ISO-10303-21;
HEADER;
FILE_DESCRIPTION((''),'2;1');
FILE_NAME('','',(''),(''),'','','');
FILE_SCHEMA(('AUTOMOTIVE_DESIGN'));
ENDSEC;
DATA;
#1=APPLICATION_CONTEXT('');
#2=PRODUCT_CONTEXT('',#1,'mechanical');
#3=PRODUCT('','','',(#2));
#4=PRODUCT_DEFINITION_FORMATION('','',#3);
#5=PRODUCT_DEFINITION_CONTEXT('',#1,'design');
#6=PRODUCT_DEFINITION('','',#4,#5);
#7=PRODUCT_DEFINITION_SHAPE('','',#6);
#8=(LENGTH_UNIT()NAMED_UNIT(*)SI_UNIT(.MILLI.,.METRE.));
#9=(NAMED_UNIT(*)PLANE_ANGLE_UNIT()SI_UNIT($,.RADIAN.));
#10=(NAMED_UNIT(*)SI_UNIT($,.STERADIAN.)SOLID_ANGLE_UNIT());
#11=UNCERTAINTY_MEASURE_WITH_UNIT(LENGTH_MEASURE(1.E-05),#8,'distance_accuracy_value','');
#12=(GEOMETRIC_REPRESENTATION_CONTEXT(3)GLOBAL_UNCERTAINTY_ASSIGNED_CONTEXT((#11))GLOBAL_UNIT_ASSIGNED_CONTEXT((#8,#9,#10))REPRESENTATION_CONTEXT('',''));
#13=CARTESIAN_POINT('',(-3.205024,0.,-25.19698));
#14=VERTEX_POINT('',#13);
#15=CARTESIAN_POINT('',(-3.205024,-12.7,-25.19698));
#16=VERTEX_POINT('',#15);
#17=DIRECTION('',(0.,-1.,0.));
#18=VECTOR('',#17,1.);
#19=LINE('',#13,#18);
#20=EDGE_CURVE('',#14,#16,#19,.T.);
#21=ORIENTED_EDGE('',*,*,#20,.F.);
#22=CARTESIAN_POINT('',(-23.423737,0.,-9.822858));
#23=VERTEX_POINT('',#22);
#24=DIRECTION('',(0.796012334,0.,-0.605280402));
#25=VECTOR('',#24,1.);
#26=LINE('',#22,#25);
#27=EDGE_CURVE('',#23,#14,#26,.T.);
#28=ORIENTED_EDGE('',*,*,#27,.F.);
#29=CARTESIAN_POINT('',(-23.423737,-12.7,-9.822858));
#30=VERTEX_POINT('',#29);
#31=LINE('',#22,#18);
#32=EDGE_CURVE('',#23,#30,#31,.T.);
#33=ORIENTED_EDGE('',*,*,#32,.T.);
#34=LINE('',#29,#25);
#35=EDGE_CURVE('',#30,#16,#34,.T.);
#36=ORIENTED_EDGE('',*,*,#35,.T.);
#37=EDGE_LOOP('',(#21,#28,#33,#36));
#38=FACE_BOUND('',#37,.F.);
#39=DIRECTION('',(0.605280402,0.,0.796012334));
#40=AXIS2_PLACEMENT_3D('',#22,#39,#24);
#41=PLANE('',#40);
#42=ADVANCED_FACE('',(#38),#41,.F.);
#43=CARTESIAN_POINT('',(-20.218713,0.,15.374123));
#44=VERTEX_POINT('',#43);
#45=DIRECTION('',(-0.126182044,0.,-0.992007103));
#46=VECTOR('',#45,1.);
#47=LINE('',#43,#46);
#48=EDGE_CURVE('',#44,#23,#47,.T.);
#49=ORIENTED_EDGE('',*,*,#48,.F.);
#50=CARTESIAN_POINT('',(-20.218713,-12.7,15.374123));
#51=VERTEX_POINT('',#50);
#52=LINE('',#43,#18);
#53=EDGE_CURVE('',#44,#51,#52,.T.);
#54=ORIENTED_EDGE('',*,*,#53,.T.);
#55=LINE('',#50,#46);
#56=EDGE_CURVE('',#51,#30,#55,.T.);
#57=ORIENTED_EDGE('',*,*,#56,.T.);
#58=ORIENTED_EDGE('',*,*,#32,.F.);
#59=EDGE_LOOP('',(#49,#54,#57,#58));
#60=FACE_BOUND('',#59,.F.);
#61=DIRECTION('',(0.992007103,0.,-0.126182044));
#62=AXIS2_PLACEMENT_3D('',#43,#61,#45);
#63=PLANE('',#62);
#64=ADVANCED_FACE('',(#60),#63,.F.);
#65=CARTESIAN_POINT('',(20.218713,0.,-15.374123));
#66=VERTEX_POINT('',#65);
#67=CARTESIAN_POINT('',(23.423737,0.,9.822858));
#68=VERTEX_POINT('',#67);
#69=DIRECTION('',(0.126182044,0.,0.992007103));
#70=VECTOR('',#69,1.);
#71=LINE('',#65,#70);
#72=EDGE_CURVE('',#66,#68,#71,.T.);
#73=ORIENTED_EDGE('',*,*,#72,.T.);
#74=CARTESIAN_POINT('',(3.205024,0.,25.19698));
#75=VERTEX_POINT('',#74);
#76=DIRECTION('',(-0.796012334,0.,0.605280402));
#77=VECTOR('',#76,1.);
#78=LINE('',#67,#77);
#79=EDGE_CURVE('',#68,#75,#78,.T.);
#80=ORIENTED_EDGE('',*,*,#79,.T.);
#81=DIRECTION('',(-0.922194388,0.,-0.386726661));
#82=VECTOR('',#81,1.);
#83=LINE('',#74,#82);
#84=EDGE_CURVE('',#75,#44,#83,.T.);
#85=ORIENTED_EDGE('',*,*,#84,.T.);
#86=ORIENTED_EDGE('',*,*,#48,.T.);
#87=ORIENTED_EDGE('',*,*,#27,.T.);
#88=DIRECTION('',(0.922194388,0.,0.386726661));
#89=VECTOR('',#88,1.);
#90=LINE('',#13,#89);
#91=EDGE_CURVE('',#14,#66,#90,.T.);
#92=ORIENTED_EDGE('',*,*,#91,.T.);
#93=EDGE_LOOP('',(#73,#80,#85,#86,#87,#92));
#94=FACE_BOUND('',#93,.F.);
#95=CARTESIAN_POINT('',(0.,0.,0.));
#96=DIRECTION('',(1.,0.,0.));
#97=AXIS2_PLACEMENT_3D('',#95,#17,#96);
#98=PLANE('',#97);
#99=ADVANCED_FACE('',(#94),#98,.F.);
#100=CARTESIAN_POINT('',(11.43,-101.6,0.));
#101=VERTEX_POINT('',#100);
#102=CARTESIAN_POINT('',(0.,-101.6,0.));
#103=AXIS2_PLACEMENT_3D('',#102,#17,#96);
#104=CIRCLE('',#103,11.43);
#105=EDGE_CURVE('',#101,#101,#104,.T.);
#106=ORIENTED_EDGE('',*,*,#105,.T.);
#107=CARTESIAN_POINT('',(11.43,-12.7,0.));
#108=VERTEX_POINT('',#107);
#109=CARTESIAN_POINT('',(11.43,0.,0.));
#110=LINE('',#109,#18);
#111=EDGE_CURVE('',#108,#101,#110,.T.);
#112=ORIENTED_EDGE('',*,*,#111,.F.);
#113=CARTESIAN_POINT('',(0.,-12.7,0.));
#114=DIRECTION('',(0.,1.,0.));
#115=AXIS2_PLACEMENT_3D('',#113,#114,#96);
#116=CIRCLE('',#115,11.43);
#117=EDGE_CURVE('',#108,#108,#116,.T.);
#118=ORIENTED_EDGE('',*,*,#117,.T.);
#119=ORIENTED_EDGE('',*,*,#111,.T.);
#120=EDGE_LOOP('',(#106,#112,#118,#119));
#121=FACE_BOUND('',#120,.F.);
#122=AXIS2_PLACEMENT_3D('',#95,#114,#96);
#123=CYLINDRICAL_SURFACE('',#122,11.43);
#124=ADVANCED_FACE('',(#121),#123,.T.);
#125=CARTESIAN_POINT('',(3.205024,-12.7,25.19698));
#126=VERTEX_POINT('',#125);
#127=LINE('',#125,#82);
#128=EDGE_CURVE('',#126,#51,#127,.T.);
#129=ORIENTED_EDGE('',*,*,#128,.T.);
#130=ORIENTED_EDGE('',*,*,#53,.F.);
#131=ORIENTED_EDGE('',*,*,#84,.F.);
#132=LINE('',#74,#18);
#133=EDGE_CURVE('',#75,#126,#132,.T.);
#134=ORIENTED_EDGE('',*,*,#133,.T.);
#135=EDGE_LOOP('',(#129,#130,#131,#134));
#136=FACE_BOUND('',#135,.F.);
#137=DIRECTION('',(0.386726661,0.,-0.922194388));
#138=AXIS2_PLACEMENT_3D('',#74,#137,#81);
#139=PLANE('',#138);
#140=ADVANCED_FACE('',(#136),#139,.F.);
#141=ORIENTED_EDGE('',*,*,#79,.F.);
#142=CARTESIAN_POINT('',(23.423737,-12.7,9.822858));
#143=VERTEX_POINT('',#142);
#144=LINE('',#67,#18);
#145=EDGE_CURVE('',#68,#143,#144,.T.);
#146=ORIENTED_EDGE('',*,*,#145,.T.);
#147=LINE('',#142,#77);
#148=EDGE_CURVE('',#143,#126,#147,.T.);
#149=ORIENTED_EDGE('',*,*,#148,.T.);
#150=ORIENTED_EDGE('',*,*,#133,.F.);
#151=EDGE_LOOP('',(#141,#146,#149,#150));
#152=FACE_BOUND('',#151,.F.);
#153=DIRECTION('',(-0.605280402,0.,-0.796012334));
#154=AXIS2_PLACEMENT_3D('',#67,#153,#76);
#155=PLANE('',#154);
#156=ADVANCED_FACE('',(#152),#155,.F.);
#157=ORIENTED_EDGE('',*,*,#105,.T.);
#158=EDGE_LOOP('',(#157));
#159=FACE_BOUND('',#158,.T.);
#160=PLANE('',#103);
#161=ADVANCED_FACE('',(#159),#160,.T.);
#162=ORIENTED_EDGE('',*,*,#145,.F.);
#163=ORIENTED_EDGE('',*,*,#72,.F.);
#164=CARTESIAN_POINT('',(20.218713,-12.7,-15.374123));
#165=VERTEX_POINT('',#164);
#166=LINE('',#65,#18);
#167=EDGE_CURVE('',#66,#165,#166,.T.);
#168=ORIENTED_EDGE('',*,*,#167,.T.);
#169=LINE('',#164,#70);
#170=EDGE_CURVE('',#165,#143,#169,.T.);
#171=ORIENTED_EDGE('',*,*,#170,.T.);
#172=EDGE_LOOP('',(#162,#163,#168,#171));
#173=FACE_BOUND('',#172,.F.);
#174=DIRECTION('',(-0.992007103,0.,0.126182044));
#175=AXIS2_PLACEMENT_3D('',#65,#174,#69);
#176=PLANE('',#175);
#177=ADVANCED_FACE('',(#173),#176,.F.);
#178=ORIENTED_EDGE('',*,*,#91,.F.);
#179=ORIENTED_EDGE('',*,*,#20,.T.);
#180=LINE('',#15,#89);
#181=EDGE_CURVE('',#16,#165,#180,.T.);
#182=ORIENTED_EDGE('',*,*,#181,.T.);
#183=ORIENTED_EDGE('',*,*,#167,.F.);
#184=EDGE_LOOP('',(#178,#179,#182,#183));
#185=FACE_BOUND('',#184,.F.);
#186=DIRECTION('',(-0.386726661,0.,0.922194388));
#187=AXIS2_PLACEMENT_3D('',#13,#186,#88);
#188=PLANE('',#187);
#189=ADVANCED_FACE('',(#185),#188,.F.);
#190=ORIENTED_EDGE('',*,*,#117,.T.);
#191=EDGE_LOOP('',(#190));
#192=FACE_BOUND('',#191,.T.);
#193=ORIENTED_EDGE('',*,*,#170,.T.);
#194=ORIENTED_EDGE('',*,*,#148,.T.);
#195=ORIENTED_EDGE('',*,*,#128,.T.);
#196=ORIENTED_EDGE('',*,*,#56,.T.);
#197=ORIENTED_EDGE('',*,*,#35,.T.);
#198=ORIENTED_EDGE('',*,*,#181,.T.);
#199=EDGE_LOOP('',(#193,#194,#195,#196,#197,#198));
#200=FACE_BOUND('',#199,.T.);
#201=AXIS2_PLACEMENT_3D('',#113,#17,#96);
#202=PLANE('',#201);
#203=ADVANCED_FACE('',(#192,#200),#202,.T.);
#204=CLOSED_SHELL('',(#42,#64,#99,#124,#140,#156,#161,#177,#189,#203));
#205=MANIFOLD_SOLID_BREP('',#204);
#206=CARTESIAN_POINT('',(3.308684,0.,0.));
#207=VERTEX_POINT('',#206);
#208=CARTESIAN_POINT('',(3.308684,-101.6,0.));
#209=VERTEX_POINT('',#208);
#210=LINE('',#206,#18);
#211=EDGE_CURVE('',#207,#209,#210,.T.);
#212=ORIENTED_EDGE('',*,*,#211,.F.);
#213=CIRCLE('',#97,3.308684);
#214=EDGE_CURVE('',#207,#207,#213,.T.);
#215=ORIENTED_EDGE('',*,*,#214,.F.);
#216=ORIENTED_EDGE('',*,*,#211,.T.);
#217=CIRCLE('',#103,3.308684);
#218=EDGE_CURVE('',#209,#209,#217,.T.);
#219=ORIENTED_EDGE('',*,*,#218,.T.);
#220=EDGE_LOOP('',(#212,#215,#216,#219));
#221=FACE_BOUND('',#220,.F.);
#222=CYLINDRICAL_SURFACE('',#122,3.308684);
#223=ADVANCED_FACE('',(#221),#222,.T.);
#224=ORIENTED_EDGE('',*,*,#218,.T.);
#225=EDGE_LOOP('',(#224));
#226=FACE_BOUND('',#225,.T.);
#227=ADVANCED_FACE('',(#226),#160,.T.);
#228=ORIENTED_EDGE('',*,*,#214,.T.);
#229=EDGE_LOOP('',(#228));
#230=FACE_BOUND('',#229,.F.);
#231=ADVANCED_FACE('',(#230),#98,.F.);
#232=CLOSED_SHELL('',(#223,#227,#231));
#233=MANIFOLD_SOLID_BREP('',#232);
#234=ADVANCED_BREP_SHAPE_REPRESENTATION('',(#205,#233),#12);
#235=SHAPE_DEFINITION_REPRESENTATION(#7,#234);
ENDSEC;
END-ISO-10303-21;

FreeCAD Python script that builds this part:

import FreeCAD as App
import Part
import Sketcher
from FreeCAD import Vector
Q = App.Units.Quantity

doc = App.newDocument("Part")
body = doc.addObject("PartDesign::Body", "Body")

# Sketch on XZ plane
sketch1 = doc.addObject("Sketcher::SketchObject", "Sketch")
body.addObject(sketch1)
sketch1.AttachmentSupport = (doc.XZ_Plane, [""])
sketch1.MapMode = "FlatFace"
sketch1.addGeometry([
    Part.LineSegment(Vector(3.205024, 25.19698, 0), Vector(-20.218713, 15.374123, 0)),  # 0
    Part.LineSegment(Vector(-20.218713, 15.374123, 0), Vector(-23.423737, -9.822858, 0)),  # 1
    Part.LineSegment(Vector(-23.423737, -9.822858, 0), Vector(-3.205024, -25.19698, 0)),  # 2
    Part.LineSegment(Vector(-3.205024, -25.19698, 0), Vector(20.218713, -15.374123, 0)),  # 3
    Part.LineSegment(Vector(20.218713, -15.374123, 0), Vector(23.423737, 9.822858, 0)),  # 4
    Part.LineSegment(Vector(23.423737, 9.822858, 0), Vector(3.205024, 25.19698, 0)),  # 5
], False)
sketch1.addConstraint([
    Sketcher.Constraint("Coincident", 0, 2, 1, 1),
    Sketcher.Constraint("Coincident", 1, 2, 2, 1),
    Sketcher.Constraint("Coincident", 2, 2, 3, 1),
    Sketcher.Constraint("Coincident", 3, 2, 4, 1),
    Sketcher.Constraint("Coincident", 4, 2, 5, 1),
    Sketcher.Constraint("Coincident", 5, 2, 0, 1),
    Sketcher.Constraint("Symmetric", 0, 2, 3, 2, -1, 1),
    Sketcher.Constraint("Symmetric", 1, 2, 4, 2, -1, 1),
    Sketcher.Constraint("Symmetric", 2, 2, 5, 2, -1, 1),
    Sketcher.Constraint("Equal", 0, 1),
    Sketcher.Constraint("Equal", 1, 2),
    Sketcher.Constraint("Distance", 0, Q("1 in")),
    Sketcher.Constraint("DistanceY", 2, 2, -1, 1, Q("25.19698 mm")),
    Sketcher.Constraint("DistanceY", 1, 2, 0, 2, Q("25.196981 mm")),
    Sketcher.Constraint("DistanceX", 0, 2, 2, 2, Q("17.013689 mm")),
])
pad1 = doc.addObject("PartDesign::Pad", "Pad")
body.addObject(pad1)
pad1.Profile = sketch1
pad1.Length = Q("0.5 in")

# Sketch on XZ plane
sketch2 = doc.addObject("Sketcher::SketchObject", "Sketch001")
body.addObject(sketch2)
sketch2.AttachmentSupport = (doc.XZ_Plane, [""])
sketch2.MapMode = "FlatFace"
sketch2.addGeometry(Part.Circle(Vector(0, 0, 0), Vector(0, 0, 1), 11.43), False)
sketch2.addConstraint([
    Sketcher.Constraint("Coincident", 0, 3, -1, 1),
    Sketcher.Constraint("Diameter", 0, Q("0.9 in")),
])
pad2 = doc.addObject("PartDesign::Pad", "Pad001")
body.addObject(pad2)
pad2.Profile = sketch2
pad2.Length = Q("4 in")
body2 = doc.addObject("PartDesign::Body", "Body001")

# Sketch on XZ plane
sketch3 = doc.addObject("Sketcher::SketchObject", "Sketch002")
body2.addObject(sketch3)
sketch3.AttachmentSupport = (doc.getObject("XZ_Plane001"), [""])
sketch3.MapMode = "FlatFace"
sketch3.addGeometry(Part.Circle(Vector(0, 0, 0), Vector(0, 0, 1), 3.308684), False)
sketch3.addConstraint([
    Sketcher.Constraint("Coincident", 0, 3, -1, 1),
    Sketcher.Constraint("Diameter", 0, Q("6.617368 mm")),
])
pad3 = doc.addObject("PartDesign::Pad", "Pad002")
body2.addObject(pad3)
pad3.Profile = sketch3
pad3.Length = Q("4 in")

doc.recompute()
